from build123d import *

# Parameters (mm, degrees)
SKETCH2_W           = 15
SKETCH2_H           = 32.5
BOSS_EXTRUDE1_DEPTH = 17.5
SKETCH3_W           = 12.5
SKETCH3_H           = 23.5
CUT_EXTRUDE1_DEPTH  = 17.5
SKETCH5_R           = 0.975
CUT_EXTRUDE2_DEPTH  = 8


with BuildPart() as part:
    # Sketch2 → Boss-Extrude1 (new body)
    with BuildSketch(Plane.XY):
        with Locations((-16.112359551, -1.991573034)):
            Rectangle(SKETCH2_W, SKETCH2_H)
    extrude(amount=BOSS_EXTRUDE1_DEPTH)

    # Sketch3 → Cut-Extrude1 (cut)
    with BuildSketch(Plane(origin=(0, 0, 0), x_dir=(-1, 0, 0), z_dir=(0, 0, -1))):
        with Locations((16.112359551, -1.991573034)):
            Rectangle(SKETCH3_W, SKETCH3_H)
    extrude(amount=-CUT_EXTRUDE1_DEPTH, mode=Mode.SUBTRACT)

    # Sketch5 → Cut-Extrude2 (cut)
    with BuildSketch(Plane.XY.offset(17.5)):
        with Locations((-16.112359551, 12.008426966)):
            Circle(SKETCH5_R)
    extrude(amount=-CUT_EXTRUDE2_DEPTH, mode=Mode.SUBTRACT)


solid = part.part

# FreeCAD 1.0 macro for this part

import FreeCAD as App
import Part
import Sketcher

V = App.Vector
Q = App.Units.Quantity


def add_polygon(sketch, points):
    """Adds a closed chain of lines whose ends are joined by coincident constraints."""
    first, n = sketch.GeometryCount, len(points)
    for a, b in zip(points, points[1:] + points[:1]):
        sketch.addGeometry(Part.LineSegment(App.Vector(*a, 0), App.Vector(*b, 0)), False)
    for i in range(n):
        sketch.addConstraint(Sketcher.Constraint("Coincident", first + i, 2, first + (i + 1) % n, 1))

doc = App.newDocument("Part")
body = doc.addObject("PartDesign::Body", "Body")

# Sketch on XY plane
sketch1 = body.newObject("Sketcher::SketchObject", "Sketch")
sketch1.AttachmentSupport = (doc.getObject("XY_Plane"), [""])
sketch1.MapMode = "FlatFace"
add_polygon(sketch1, [(-24, 14), (-24, -18), (-9, -18), (-9, 14)])  # lines 0-3
sketch1.addConstraint([
    Sketcher.Constraint("Vertical", 0),
    Sketcher.Constraint("Horizontal", 1),
    Sketcher.Constraint("Vertical", 2),
    Sketcher.Constraint("Horizontal", 3),
    Sketcher.Constraint("DistanceX", 1, 1, 1, 2, Q("15 mm")),
    Sketcher.Constraint("DistanceY", 0, 2, 0, 1, Q("32.5 mm")),
    Sketcher.Constraint("DistanceX", 0, 2, -1, 1, Q("23.61236 mm")),
    Sketcher.Constraint("DistanceY", 0, 2, -1, 1, Q("18.241573 mm")),
])
pad1 = body.newObject("PartDesign::Pad", "Pad")
pad1.Profile = sketch1
pad1.Length = 17.5

# Sketch on XY plane
sketch2 = body.newObject("Sketcher::SketchObject", "Sketch001")
sketch2.AttachmentSupport = (doc.getObject("XY_Plane"), [""])
sketch2.MapMode = "FlatFace"
add_polygon(sketch2, [(-10, 10), (-10, -14), (-22, -14), (-22, 10)])  # lines 0-3
sketch2.addConstraint([
    Sketcher.Constraint("Vertical", 0),
    Sketcher.Constraint("Horizontal", 1),
    Sketcher.Constraint("Vertical", 2),
    Sketcher.Constraint("Horizontal", 3),
    Sketcher.Constraint("DistanceX", 1, 2, 1, 1, Q("12.5 mm")),
    Sketcher.Constraint("DistanceY", 0, 2, 0, 1, Q("23.5 mm")),
    Sketcher.Constraint("DistanceX", 0, 2, -1, 1, Q("9.86236 mm")),
    Sketcher.Constraint("DistanceY", 0, 2, -1, 1, Q("13.741573 mm")),
])
pocket1 = body.newObject("PartDesign::Pocket", "Pocket")
pocket1.Profile = sketch2
pocket1.Length = 17.5
pocket1.Reversed = True

# Sketch on XY plane
sketch3 = body.newObject("Sketcher::SketchObject", "Sketch002")
sketch3.AttachmentSupport = (doc.getObject("XY_Plane"), [""])
sketch3.MapMode = "FlatFace"
sketch3.AttachmentOffset = App.Placement(V(0, 0, 17.5), App.Rotation())
sketch3.addGeometry(Part.Circle(V(-16.1, 12, 0), V(0, 0, 1), 1), False)
sketch3.addConstraint([
    Sketcher.Constraint("Diameter", 0, Q("1.95 mm")),
    Sketcher.Constraint("DistanceX", 0, 3, -1, 1, Q("16.11236 mm")),
    Sketcher.Constraint("DistanceY", -1, 1, 0, 3, Q("12.008427 mm")),
])
pocket2 = body.newObject("PartDesign::Pocket", "Pocket001")
pocket2.Profile = sketch3
pocket2.Length = 8

doc.recompute()
